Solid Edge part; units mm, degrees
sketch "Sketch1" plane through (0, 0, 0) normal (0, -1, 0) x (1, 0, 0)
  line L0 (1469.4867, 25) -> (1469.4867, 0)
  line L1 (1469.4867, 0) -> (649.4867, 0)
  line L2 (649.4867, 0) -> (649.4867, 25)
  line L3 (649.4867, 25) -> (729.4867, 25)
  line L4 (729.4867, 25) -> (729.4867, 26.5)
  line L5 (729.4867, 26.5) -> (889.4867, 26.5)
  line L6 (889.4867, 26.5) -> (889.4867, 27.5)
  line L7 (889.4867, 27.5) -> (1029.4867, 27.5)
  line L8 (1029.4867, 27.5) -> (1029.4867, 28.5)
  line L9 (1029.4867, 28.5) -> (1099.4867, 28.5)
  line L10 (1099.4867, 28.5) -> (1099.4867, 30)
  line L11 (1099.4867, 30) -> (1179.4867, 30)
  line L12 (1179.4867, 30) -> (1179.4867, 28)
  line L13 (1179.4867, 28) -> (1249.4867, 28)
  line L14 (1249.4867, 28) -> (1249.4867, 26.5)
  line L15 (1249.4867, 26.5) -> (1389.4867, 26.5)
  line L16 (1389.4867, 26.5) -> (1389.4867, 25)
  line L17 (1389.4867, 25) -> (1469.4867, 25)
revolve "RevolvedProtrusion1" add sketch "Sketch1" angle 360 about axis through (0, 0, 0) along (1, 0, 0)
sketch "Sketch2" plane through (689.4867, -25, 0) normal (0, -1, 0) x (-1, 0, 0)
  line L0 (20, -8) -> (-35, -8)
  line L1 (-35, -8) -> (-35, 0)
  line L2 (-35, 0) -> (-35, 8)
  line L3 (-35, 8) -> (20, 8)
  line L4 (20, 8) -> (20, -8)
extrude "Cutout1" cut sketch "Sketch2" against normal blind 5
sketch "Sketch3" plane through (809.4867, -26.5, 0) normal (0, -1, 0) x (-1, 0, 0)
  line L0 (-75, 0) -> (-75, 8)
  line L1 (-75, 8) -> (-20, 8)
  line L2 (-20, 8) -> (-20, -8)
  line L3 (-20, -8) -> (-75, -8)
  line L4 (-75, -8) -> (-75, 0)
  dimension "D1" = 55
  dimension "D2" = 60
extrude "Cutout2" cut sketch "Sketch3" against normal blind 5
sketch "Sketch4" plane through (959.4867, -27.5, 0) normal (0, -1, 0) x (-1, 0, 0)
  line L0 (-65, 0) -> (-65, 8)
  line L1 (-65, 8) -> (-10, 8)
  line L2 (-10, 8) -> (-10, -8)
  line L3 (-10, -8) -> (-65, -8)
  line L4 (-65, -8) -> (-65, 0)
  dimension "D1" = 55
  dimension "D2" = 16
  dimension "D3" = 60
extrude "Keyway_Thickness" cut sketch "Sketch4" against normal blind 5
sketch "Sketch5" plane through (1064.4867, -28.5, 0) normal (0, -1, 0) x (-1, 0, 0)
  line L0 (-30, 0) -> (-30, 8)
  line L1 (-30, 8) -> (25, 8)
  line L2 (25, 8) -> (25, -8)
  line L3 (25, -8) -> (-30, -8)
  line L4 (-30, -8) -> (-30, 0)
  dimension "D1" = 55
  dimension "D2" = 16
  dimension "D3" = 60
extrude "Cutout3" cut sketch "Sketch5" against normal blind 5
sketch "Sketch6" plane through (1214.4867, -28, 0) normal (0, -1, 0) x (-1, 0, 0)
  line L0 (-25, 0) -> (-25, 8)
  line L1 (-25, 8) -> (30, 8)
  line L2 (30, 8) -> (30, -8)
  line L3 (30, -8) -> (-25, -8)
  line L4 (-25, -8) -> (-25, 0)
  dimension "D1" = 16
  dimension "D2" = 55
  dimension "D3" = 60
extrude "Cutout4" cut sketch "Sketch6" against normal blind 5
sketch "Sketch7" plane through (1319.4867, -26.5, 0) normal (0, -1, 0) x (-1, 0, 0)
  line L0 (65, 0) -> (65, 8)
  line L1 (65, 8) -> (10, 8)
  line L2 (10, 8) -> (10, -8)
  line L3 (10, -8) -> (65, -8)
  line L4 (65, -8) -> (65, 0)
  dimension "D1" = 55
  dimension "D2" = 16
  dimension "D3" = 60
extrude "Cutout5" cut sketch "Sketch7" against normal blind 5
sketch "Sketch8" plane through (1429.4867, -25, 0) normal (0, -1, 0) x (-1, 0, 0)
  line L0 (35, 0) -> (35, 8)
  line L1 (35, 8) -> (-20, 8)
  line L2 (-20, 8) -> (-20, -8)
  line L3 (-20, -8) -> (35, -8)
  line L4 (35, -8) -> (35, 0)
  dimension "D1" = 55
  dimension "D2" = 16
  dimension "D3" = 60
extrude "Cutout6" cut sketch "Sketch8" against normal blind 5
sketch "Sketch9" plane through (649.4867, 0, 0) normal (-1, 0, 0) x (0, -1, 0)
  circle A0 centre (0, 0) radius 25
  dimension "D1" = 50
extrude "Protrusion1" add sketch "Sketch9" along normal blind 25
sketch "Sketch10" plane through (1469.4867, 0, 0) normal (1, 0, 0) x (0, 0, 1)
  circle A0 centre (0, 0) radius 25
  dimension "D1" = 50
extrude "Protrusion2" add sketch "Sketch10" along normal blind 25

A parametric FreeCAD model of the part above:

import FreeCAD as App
import Part
import Sketcher
Q = App.Units.Quantity

doc = App.newDocument("Part")
params = doc.addObject("Spreadsheet::Sheet", "Params")
for row, (alias, value) in enumerate([
    ("sketch1_width", "80 mm"),
    ("sketch1_width2", "140 mm"),
    ("sketch1_width3", "70 mm"),
    ("sketch1_width4", "160 mm"),
    ("sketch1_height", "25 mm"),
    ("revolution_angle", "360 deg"),
    ("sketch2_width", "55 mm"),
    ("sketch2_height", "16 mm"),
    ("pocket1_length", "5 mm"),
    ("sketch3_width", "55 mm"),
    ("sketch3_height", "16 mm"),
    ("pocket2_length", "5 mm"),
    ("sketch4_width", "55 mm"),
    ("sketch4_height", "16 mm"),
    ("pocket3_length", "5 mm"),
    ("sketch5_width", "55 mm"),
    ("sketch5_height", "16 mm"),
    ("pocket4_length", "5 mm"),
    ("sketch6_width", "55 mm"),
    ("sketch6_height", "16 mm"),
    ("pocket5_length", "5 mm"),
    ("sketch7_width", "55 mm"),
    ("sketch7_height", "16 mm"),
    ("pocket6_length", "5 mm"),
    ("sketch8_width", "55 mm"),
    ("sketch8_height", "16 mm"),
    ("pocket7_length", "5 mm"),
    ("sketch9_diameter", "50 mm"),
    ("pad1_length", "25 mm"),
    ("sketch10_diameter", "50 mm"),
    ("pad2_length", "25 mm"),
], start=1):
    params.set(f"A{row}", alias)
    params.set(f"B{row}", "=" + value)
    params.setAlias(f"B{row}", alias)

body = doc.addObject("PartDesign::Body", "Body")

# Sketch on XZ plane
sketch1 = doc.addObject("Sketcher::SketchObject", "Sketch")
body.addObject(sketch1)
sketch1.AttachmentSupport = (doc.XZ_Plane, [""])
sketch1.MapMode = "FlatFace"
sketch1.addGeometry(Part.LineSegment(App.Vector(1469.4867, 0, 0), App.Vector(1469.4867, 25, 0)), False)
sketch1.addGeometry(Part.LineSegment(App.Vector(1469.4867, 25, 0), App.Vector(1389.4867, 25, 0)), False)
sketch1.addGeometry(Part.LineSegment(App.Vector(1389.4867, 25, 0), App.Vector(1389.4867, 26.5, 0)), False)
sketch1.addGeometry(Part.LineSegment(App.Vector(1389.4867, 26.5, 0), App.Vector(1249.4867, 26.5, 0)), False)
sketch1.addGeometry(Part.LineSegment(App.Vector(1249.4867, 26.5, 0), App.Vector(1249.4867, 28, 0)), False)
sketch1.addGeometry(Part.LineSegment(App.Vector(1249.4867, 28, 0), App.Vector(1179.4867, 28, 0)), False)
sketch1.addGeometry(Part.LineSegment(App.Vector(1179.4867, 28, 0), App.Vector(1179.4867, 30, 0)), False)
sketch1.addGeometry(Part.LineSegment(App.Vector(1179.4867, 30, 0), App.Vector(1099.4867, 30, 0)), False)
sketch1.addGeometry(Part.LineSegment(App.Vector(1099.4867, 30, 0), App.Vector(1099.4867, 28.5, 0)), False)
sketch1.addGeometry(Part.LineSegment(App.Vector(1099.4867, 28.5, 0), App.Vector(1029.4867, 28.5, 0)), False)
sketch1.addGeometry(Part.LineSegment(App.Vector(1029.4867, 28.5, 0), App.Vector(1029.4867, 27.5, 0)), False)
sketch1.addGeometry(Part.LineSegment(App.Vector(1029.4867, 27.5, 0), App.Vector(889.4867, 27.5, 0)), False)
sketch1.addGeometry(Part.LineSegment(App.Vector(889.4867, 27.5, 0), App.Vector(889.4867, 26.5, 0)), False)
sketch1.addGeometry(Part.LineSegment(App.Vector(889.4867, 26.5, 0), App.Vector(729.4867, 26.5, 0)), False)
sketch1.addGeometry(Part.LineSegment(App.Vector(729.4867, 26.5, 0), App.Vector(729.4867, 25, 0)), False)
sketch1.addGeometry(Part.LineSegment(App.Vector(729.4867, 25, 0), App.Vector(649.4867, 25, 0)), False)
sketch1.addGeometry(Part.LineSegment(App.Vector(649.4867, 25, 0), App.Vector(649.4867, 0, 0)), False)
sketch1.addGeometry(Part.LineSegment(App.Vector(649.4867, 0, 0), App.Vector(1469.4867, 0, 0)), False)
sketch1.addConstraint(Sketcher.Constraint("Coincident", 0, 2, 1, 1))
sketch1.addConstraint(Sketcher.Constraint("Coincident", 1, 2, 2, 1))
sketch1.addConstraint(Sketcher.Constraint("Coincident", 2, 2, 3, 1))
sketch1.addConstraint(Sketcher.Constraint("Coincident", 3, 2, 4, 1))
sketch1.addConstraint(Sketcher.Constraint("Coincident", 4, 2, 5, 1))
sketch1.addConstraint(Sketcher.Constraint("Coincident", 5, 2, 6, 1))
sketch1.addConstraint(Sketcher.Constraint("Coincident", 6, 2, 7, 1))
sketch1.addConstraint(Sketcher.Constraint("Coincident", 7, 2, 8, 1))
sketch1.addConstraint(Sketcher.Constraint("Coincident", 8, 2, 9, 1))
sketch1.addConstraint(Sketcher.Constraint("Coincident", 9, 2, 10, 1))
sketch1.addConstraint(Sketcher.Constraint("Coincident", 10, 2, 11, 1))
sketch1.addConstraint(Sketcher.Constraint("Coincident", 11, 2, 12, 1))
sketch1.addConstraint(Sketcher.Constraint("Coincident", 12, 2, 13, 1))
sketch1.addConstraint(Sketcher.Constraint("Coincident", 13, 2, 14, 1))
sketch1.addConstraint(Sketcher.Constraint("Coincident", 14, 2, 15, 1))
sketch1.addConstraint(Sketcher.Constraint("Coincident", 15, 2, 16, 1))
sketch1.addConstraint(Sketcher.Constraint("Coincident", 16, 2, 17, 1))
sketch1.addConstraint(Sketcher.Constraint("Coincident", 17, 2, 0, 1))
sketch1.addConstraint(Sketcher.Constraint("Vertical", 0))
sketch1.addConstraint(Sketcher.Constraint("Horizontal", 1))
sketch1.addConstraint(Sketcher.Constraint("Vertical", 2))
sketch1.addConstraint(Sketcher.Constraint("Horizontal", 3))
sketch1.addConstraint(Sketcher.Constraint("Vertical", 4))
sketch1.addConstraint(Sketcher.Constraint("Horizontal", 5))
sketch1.addConstraint(Sketcher.Constraint("Vertical", 6))
sketch1.addConstraint(Sketcher.Constraint("Horizontal", 7))
sketch1.addConstraint(Sketcher.Constraint("Vertical", 8))
sketch1.addConstraint(Sketcher.Constraint("Horizontal", 9))
sketch1.addConstraint(Sketcher.Constraint("Vertical", 10))
sketch1.addConstraint(Sketcher.Constraint("Horizontal", 11))
sketch1.addConstraint(Sketcher.Constraint("Vertical", 12))
sketch1.addConstraint(Sketcher.Constraint("Horizontal", 13))
sketch1.addConstraint(Sketcher.Constraint("Vertical", 14))
sketch1.addConstraint(Sketcher.Constraint("Horizontal", 15))
sketch1.addConstraint(Sketcher.Constraint("Vertical", 16))
sketch1.addConstraint(Sketcher.Constraint("Horizontal", 17))
sketch1.addConstraint(Sketcher.Constraint("PointOnObject", 16, 2, -1))
sketch1.addConstraint(Sketcher.Constraint("Horizontal", 3, 2, 12, 2))
sketch1.addConstraint(Sketcher.Constraint("Horizontal", 1, 2, 14, 2))
sketch1.addConstraint(Sketcher.Constraint("Equal", 1, 7))
sketch1.addConstraint(Sketcher.Constraint("Equal", 5, 9))
sketch1.addConstraint(Sketcher.Constraint("Equal", 3, 11))
sketch1.addConstraint(Sketcher.Constraint("Equal", 7, 15))
sketch1.addConstraint(Sketcher.Constraint("Equal", 2, 4))
sketch1.addConstraint(Sketcher.Constraint("Equal", 4, 8))
sketch1.addConstraint(Sketcher.Constraint("Equal", 10, 12))
sketch1.addConstraint(Sketcher.Constraint("DistanceX", 1, 2, 1, 1, Q("80 mm")))
sketch1.addConstraint(Sketcher.Constraint("DistanceX", 3, 2, 3, 1, Q("140 mm")))
sketch1.addConstraint(Sketcher.Constraint("DistanceX", 5, 2, 5, 1, Q("70 mm")))
sketch1.addConstraint(Sketcher.Constraint("DistanceX", 13, 2, 13, 1, Q("160 mm")))
sketch1.addConstraint(Sketcher.Constraint("DistanceY", 0, 1, 0, 2, Q("25 mm")))
sketch1.addConstraint(Sketcher.Constraint("DistanceY", 6, 1, 6, 2, Q("2 mm")))
sketch1.addConstraint(Sketcher.Constraint("DistanceY", 2, 1, 2, 2, Q("1.5 mm")))
sketch1.addConstraint(Sketcher.Constraint("DistanceX", -1, 1, 0, 2, Q("1469.4867 mm")))
sketch1.setExpression("Constraints[46]", "Params.sketch1_width")
sketch1.setExpression("Constraints[47]", "Params.sketch1_width2")
sketch1.setExpression("Constraints[48]", "Params.sketch1_width3")
sketch1.setExpression("Constraints[49]", "Params.sketch1_width4")
sketch1.setExpression("Constraints[50]", "Params.sketch1_height")
revolution = doc.addObject("PartDesign::Revolution", "Revolution")
body.addObject(revolution)
revolution.Profile = sketch1
revolution.ReferenceAxis = (sketch1, ["H_Axis"])
revolution.setExpression("Angle", "Params.revolution_angle")

# Sketch on XZ plane
sketch2 = doc.addObject("Sketcher::SketchObject", "Sketch001")
body.addObject(sketch2)
sketch2.AttachmentSupport = (doc.XZ_Plane, [""])
sketch2.MapMode = "FlatFace"
sketch2.AttachmentOffset = App.Placement(App.Vector(0, 0, 25), App.Rotation())
sketch2.addGeometry(Part.LineSegment(App.Vector(724.4867, 8, 0), App.Vector(669.4867, 8, 0)), False)
sketch2.addGeometry(Part.LineSegment(App.Vector(669.4867, 8, 0), App.Vector(669.4867, -8, 0)), False)
sketch2.addGeometry(Part.LineSegment(App.Vector(669.4867, -8, 0), App.Vector(724.4867, -8, 0)), False)
sketch2.addGeometry(Part.LineSegment(App.Vector(724.4867, -8, 0), App.Vector(724.4867, 8, 0)), False)
sketch2.addConstraint(Sketcher.Constraint("Coincident", 0, 2, 1, 1))
sketch2.addConstraint(Sketcher.Constraint("Coincident", 1, 2, 2, 1))
sketch2.addConstraint(Sketcher.Constraint("Coincident", 2, 2, 3, 1))
sketch2.addConstraint(Sketcher.Constraint("Coincident", 3, 2, 0, 1))
sketch2.addConstraint(Sketcher.Constraint("Horizontal", 0))
sketch2.addConstraint(Sketcher.Constraint("Vertical", 1))
sketch2.addConstraint(Sketcher.Constraint("Horizontal", 2))
sketch2.addConstraint(Sketcher.Constraint("Vertical", 3))
sketch2.addConstraint(Sketcher.Constraint("DistanceX", 0, 2, 0, 1, Q("55 mm")))
sketch2.addConstraint(Sketcher.Constraint("DistanceY", 1, 2, 1, 1, Q("16 mm")))
sketch2.addConstraint(Sketcher.Constraint("DistanceY", -1, 1, 0, 2, Q("8 mm")))
sketch2.addConstraint(Sketcher.Constraint("DistanceX", -1, 1, 0, 2, Q("669.4867 mm")))
sketch2.setExpression("Constraints[8]", "Params.sketch2_width")
sketch2.setExpression("Constraints[9]", "Params.sketch2_height")
pocket1 = doc.addObject("PartDesign::Pocket", "Pocket")
body.addObject(pocket1)
pocket1.Profile = sketch2
pocket1.setExpression("Length", "Params.pocket1_length")

# Sketch on XZ plane
sketch3 = doc.addObject("Sketcher::SketchObject", "Sketch002")
body.addObject(sketch3)
sketch3.AttachmentSupport = (doc.XZ_Plane, [""])
sketch3.MapMode = "FlatFace"
sketch3.AttachmentOffset = App.Placement(App.Vector(0, 0, 26.5), App.Rotation())
sketch3.addGeometry(Part.LineSegment(App.Vector(884.4867, -8, 0), App.Vector(884.4867, 8, 0)), False)
sketch3.addGeometry(Part.LineSegment(App.Vector(884.4867, 8, 0), App.Vector(829.4867, 8, 0)), False)
sketch3.addGeometry(Part.LineSegment(App.Vector(829.4867, 8, 0), App.Vector(829.4867, -8, 0)), False)
sketch3.addGeometry(Part.LineSegment(App.Vector(829.4867, -8, 0), App.Vector(884.4867, -8, 0)), False)
sketch3.addConstraint(Sketcher.Constraint("Coincident", 0, 2, 1, 1))
sketch3.addConstraint(Sketcher.Constraint("Coincident", 1, 2, 2, 1))
sketch3.addConstraint(Sketcher.Constraint("Coincident", 2, 2, 3, 1))
sketch3.addConstraint(Sketcher.Constraint("Coincident", 3, 2, 0, 1))
sketch3.addConstraint(Sketcher.Constraint("Vertical", 0))
sketch3.addConstraint(Sketcher.Constraint("Horizontal", 1))
sketch3.addConstraint(Sketcher.Constraint("Vertical", 2))
sketch3.addConstraint(Sketcher.Constraint("Horizontal", 3))
sketch3.addConstraint(Sketcher.Constraint("DistanceX", 1, 2, 1, 1, Q("55 mm")))
sketch3.addConstraint(Sketcher.Constraint("DistanceY", 0, 1, 0, 2, Q("16 mm")))
sketch3.addConstraint(Sketcher.Constraint("DistanceY", -1, 1, 0, 2, Q("8 mm")))
sketch3.addConstraint(Sketcher.Constraint("DistanceX", -1, 1, 0, 2, Q("884.4867 mm")))
sketch3.setExpression("Constraints[8]", "Params.sketch3_width")
sketch3.setExpression("Constraints[9]", "Params.sketch3_height")
pocket2 = doc.addObject("PartDesign::Pocket", "Pocket001")
body.addObject(pocket2)
pocket2.Profile = sketch3
pocket2.setExpression("Length", "Params.pocket2_length")

# Sketch on XZ plane
sketch4 = doc.addObject("Sketcher::SketchObject", "Sketch003")
body.addObject(sketch4)
sketch4.AttachmentSupport = (doc.XZ_Plane, [""])
sketch4.MapMode = "FlatFace"
sketch4.AttachmentOffset = App.Placement(App.Vector(0, 0, 27.5), App.Rotation())
sketch4.addGeometry(Part.LineSegment(App.Vector(1024.4867, -8, 0), App.Vector(1024.4867, 8, 0)), False)
sketch4.addGeometry(Part.LineSegment(App.Vector(1024.4867, 8, 0), App.Vector(969.4867, 8, 0)), False)
sketch4.addGeometry(Part.LineSegment(App.Vector(969.4867, 8, 0), App.Vector(969.4867, -8, 0)), False)
sketch4.addGeometry(Part.LineSegment(App.Vector(969.4867, -8, 0), App.Vector(1024.4867, -8, 0)), False)
sketch4.addConstraint(Sketcher.Constraint("Coincident", 0, 2, 1, 1))
sketch4.addConstraint(Sketcher.Constraint("Coincident", 1, 2, 2, 1))
sketch4.addConstraint(Sketcher.Constraint("Coincident", 2, 2, 3, 1))
sketch4.addConstraint(Sketcher.Constraint("Coincident", 3, 2, 0, 1))
sketch4.addConstraint(Sketcher.Constraint("Vertical", 0))
sketch4.addConstraint(Sketcher.Constraint("Horizontal", 1))
sketch4.addConstraint(Sketcher.Constraint("Vertical", 2))
sketch4.addConstraint(Sketcher.Constraint("Horizontal", 3))
sketch4.addConstraint(Sketcher.Constraint("DistanceX", 1, 2, 1, 1, Q("55 mm")))
sketch4.addConstraint(Sketcher.Constraint("DistanceY", 0, 1, 0, 2, Q("16 mm")))
sketch4.addConstraint(Sketcher.Constraint("DistanceY", -1, 1, 0, 2, Q("8 mm")))
sketch4.addConstraint(Sketcher.Constraint("DistanceX", -1, 1, 0, 2, Q("1024.4867 mm")))
sketch4.setExpression("Constraints[8]", "Params.sketch4_width")
sketch4.setExpression("Constraints[9]", "Params.sketch4_height")
pocket3 = doc.addObject("PartDesign::Pocket", "Pocket002")
body.addObject(pocket3)
pocket3.Profile = sketch4
pocket3.setExpression("Length", "Params.pocket3_length")

# Sketch on XZ plane
sketch5 = doc.addObject("Sketcher::SketchObject", "Sketch004")
body.addObject(sketch5)
sketch5.AttachmentSupport = (doc.XZ_Plane, [""])
sketch5.MapMode = "FlatFace"
sketch5.AttachmentOffset = App.Placement(App.Vector(0, 0, 28.5), App.Rotation())
sketch5.addGeometry(Part.LineSegment(App.Vector(1094.4867, -8, 0), App.Vector(1094.4867, 8, 0)), False)
sketch5.addGeometry(Part.LineSegment(App.Vector(1094.4867, 8, 0), App.Vector(1039.4867, 8, 0)), False)
sketch5.addGeometry(Part.LineSegment(App.Vector(1039.4867, 8, 0), App.Vector(1039.4867, -8, 0)), False)
sketch5.addGeometry(Part.LineSegment(App.Vector(1039.4867, -8, 0), App.Vector(1094.4867, -8, 0)), False)
sketch5.addConstraint(Sketcher.Constraint("Coincident", 0, 2, 1, 1))
sketch5.addConstraint(Sketcher.Constraint("Coincident", 1, 2, 2, 1))
sketch5.addConstraint(Sketcher.Constraint("Coincident", 2, 2, 3, 1))
sketch5.addConstraint(Sketcher.Constraint("Coincident", 3, 2, 0, 1))
sketch5.addConstraint(Sketcher.Constraint("Vertical", 0))
sketch5.addConstraint(Sketcher.Constraint("Horizontal", 1))
sketch5.addConstraint(Sketcher.Constraint("Vertical", 2))
sketch5.addConstraint(Sketcher.Constraint("Horizontal", 3))
sketch5.addConstraint(Sketcher.Constraint("DistanceX", 1, 2, 1, 1, Q("55 mm")))
sketch5.addConstraint(Sketcher.Constraint("DistanceY", 0, 1, 0, 2, Q("16 mm")))
sketch5.addConstraint(Sketcher.Constraint("DistanceY", -1, 1, 0, 2, Q("8 mm")))
sketch5.addConstraint(Sketcher.Constraint("DistanceX", -1, 1, 0, 2, Q("1094.4867 mm")))
sketch5.setExpression("Constraints[8]", "Params.sketch5_width")
sketch5.setExpression("Constraints[9]", "Params.sketch5_height")
pocket4 = doc.addObject("PartDesign::Pocket", "Pocket003")
body.addObject(pocket4)
pocket4.Profile = sketch5
pocket4.setExpression("Length", "Params.pocket4_length")

# Sketch on XZ plane
sketch6 = doc.addObject("Sketcher::SketchObject", "Sketch005")
body.addObject(sketch6)
sketch6.AttachmentSupport = (doc.XZ_Plane, [""])
sketch6.MapMode = "FlatFace"
sketch6.AttachmentOffset = App.Placement(App.Vector(0, 0, 28), App.Rotation())
sketch6.addGeometry(Part.LineSegment(App.Vector(1239.4867, -8, 0), App.Vector(1239.4867, 8, 0)), False)
sketch6.addGeometry(Part.LineSegment(App.Vector(1239.4867, 8, 0), App.Vector(1184.4867, 8, 0)), False)
sketch6.addGeometry(Part.LineSegment(App.Vector(1184.4867, 8, 0), App.Vector(1184.4867, -8, 0)), False)
sketch6.addGeometry(Part.LineSegment(App.Vector(1184.4867, -8, 0), App.Vector(1239.4867, -8, 0)), False)
sketch6.addConstraint(Sketcher.Constraint("Coincident", 0, 2, 1, 1))
sketch6.addConstraint(Sketcher.Constraint("Coincident", 1, 2, 2, 1))
sketch6.addConstraint(Sketcher.Constraint("Coincident", 2, 2, 3, 1))
sketch6.addConstraint(Sketcher.Constraint("Coincident", 3, 2, 0, 1))
sketch6.addConstraint(Sketcher.Constraint("Vertical", 0))
sketch6.addConstraint(Sketcher.Constraint("Horizontal", 1))
sketch6.addConstraint(Sketcher.Constraint("Vertical", 2))
sketch6.addConstraint(Sketcher.Constraint("Horizontal", 3))
sketch6.addConstraint(Sketcher.Constraint("DistanceX", 1, 2, 1, 1, Q("55 mm")))
sketch6.addConstraint(Sketcher.Constraint("DistanceY", 0, 1, 0, 2, Q("16 mm")))
sketch6.addConstraint(Sketcher.Constraint("DistanceY", -1, 1, 0, 2, Q("8 mm")))
sketch6.addConstraint(Sketcher.Constraint("DistanceX", -1, 1, 0, 2, Q("1239.4867 mm")))
sketch6.setExpression("Constraints[8]", "Params.sketch6_width")
sketch6.setExpression("Constraints[9]", "Params.sketch6_height")
pocket5 = doc.addObject("PartDesign::Pocket", "Pocket004")
body.addObject(pocket5)
pocket5.Profile = sketch6
pocket5.setExpression("Length", "Params.pocket5_length")

# Sketch on XZ plane
sketch7 = doc.addObject("Sketcher::SketchObject", "Sketch006")
body.addObject(sketch7)
sketch7.AttachmentSupport = (doc.XZ_Plane, [""])
sketch7.MapMode = "FlatFace"
sketch7.AttachmentOffset = App.Placement(App.Vector(0, 0, 26.5), App.Rotation())
sketch7.addGeometry(Part.LineSegment(App.Vector(1254.4867, 8, 0), App.Vector(1254.4867, -8, 0)), False)
sketch7.addGeometry(Part.LineSegment(App.Vector(1254.4867, -8, 0), App.Vector(1309.4867, -8, 0)), False)
sketch7.addGeometry(Part.LineSegment(App.Vector(1309.4867, -8, 0), App.Vector(1309.4867, 8, 0)), False)
sketch7.addGeometry(Part.LineSegment(App.Vector(1309.4867, 8, 0), App.Vector(1254.4867, 8, 0)), False)
sketch7.addConstraint(Sketcher.Constraint("Coincident", 0, 2, 1, 1))
sketch7.addConstraint(Sketcher.Constraint("Coincident", 1, 2, 2, 1))
sketch7.addConstraint(Sketcher.Constraint("Coincident", 2, 2, 3, 1))
sketch7.addConstraint(Sketcher.Constraint("Coincident", 3, 2, 0, 1))
sketch7.addConstraint(Sketcher.Constraint("Vertical", 0))
sketch7.addConstraint(Sketcher.Constraint("Horizontal", 1))
sketch7.addConstraint(Sketcher.Constraint("Vertical", 2))
sketch7.addConstraint(Sketcher.Constraint("Horizontal", 3))
sketch7.addConstraint(Sketcher.Constraint("DistanceX", 1, 1, 1, 2, Q("55 mm")))
sketch7.addConstraint(Sketcher.Constraint("DistanceY", 0, 2, 0, 1, Q("16 mm")))
sketch7.addConstraint(Sketcher.Constraint("DistanceY", 0, 2, -1, 1, Q("8 mm")))
sketch7.addConstraint(Sketcher.Constraint("DistanceX", -1, 1, 0, 2, Q("1254.4867 mm")))
sketch7.setExpression("Constraints[8]", "Params.sketch7_width")
sketch7.setExpression("Constraints[9]", "Params.sketch7_height")
pocket6 = doc.addObject("PartDesign::Pocket", "Pocket005")
body.addObject(pocket6)
pocket6.Profile = sketch7
pocket6.setExpression("Length", "Params.pocket6_length")

# Sketch on XZ plane
sketch8 = doc.addObject("Sketcher::SketchObject", "Sketch007")
body.addObject(sketch8)
sketch8.AttachmentSupport = (doc.XZ_Plane, [""])
sketch8.MapMode = "FlatFace"
sketch8.AttachmentOffset = App.Placement(App.Vector(0, 0, 25), App.Rotation())
sketch8.addGeometry(Part.LineSegment(App.Vector(1394.4867, 8, 0), App.Vector(1394.4867, -8, 0)), False)
sketch8.addGeometry(Part.LineSegment(App.Vector(1394.4867, -8, 0), App.Vector(1449.4867, -8, 0)), False)
sketch8.addGeometry(Part.LineSegment(App.Vector(1449.4867, -8, 0), App.Vector(1449.4867, 8, 0)), False)
sketch8.addGeometry(Part.LineSegment(App.Vector(1449.4867, 8, 0), App.Vector(1394.4867, 8, 0)), False)
sketch8.addConstraint(Sketcher.Constraint("Coincident", 0, 2, 1, 1))
sketch8.addConstraint(Sketcher.Constraint("Coincident", 1, 2, 2, 1))
sketch8.addConstraint(Sketcher.Constraint("Coincident", 2, 2, 3, 1))
sketch8.addConstraint(Sketcher.Constraint("Coincident", 3, 2, 0, 1))
sketch8.addConstraint(Sketcher.Constraint("Vertical", 0))
sketch8.addConstraint(Sketcher.Constraint("Horizontal", 1))
sketch8.addConstraint(Sketcher.Constraint("Vertical", 2))
sketch8.addConstraint(Sketcher.Constraint("Horizontal", 3))
sketch8.addConstraint(Sketcher.Constraint("DistanceX", 1, 1, 1, 2, Q("55 mm")))
sketch8.addConstraint(Sketcher.Constraint("DistanceY", 0, 2, 0, 1, Q("16 mm")))
sketch8.addConstraint(Sketcher.Constraint("DistanceY", 0, 2, -1, 1, Q("8 mm")))
sketch8.addConstraint(Sketcher.Constraint("DistanceX", -1, 1, 0, 2, Q("1394.4867 mm")))
sketch8.setExpression("Constraints[8]", "Params.sketch8_width")
sketch8.setExpression("Constraints[9]", "Params.sketch8_height")
pocket7 = doc.addObject("PartDesign::Pocket", "Pocket006")
body.addObject(pocket7)
pocket7.Profile = sketch8
pocket7.setExpression("Length", "Params.pocket7_length")

# Sketch on YZ plane
sketch9 = doc.addObject("Sketcher::SketchObject", "Sketch008")
body.addObject(sketch9)
sketch9.AttachmentSupport = (doc.YZ_Plane, [""])
sketch9.MapMode = "FlatFace"
sketch9.AttachmentOffset = App.Placement(App.Vector(0, 0, 649.4867), App.Rotation())
sketch9.addGeometry(Part.Circle(App.Vector(0, 0, 0), App.Vector(0, 0, 1), 25), False)
sketch9.addConstraint(Sketcher.Constraint("Coincident", 0, 3, -1, 1))
sketch9.addConstraint(Sketcher.Constraint("Diameter", 0, Q("50 mm")))
sketch9.setExpression("Constraints[1]", "Params.sketch9_diameter")
pad1 = doc.addObject("PartDesign::Pad", "Pad")
body.addObject(pad1)
pad1.Profile = sketch9
pad1.setExpression("Length", "Params.pad1_length")
pad1.Reversed = True

# Sketch on YZ plane
sketch10 = doc.addObject("Sketcher::SketchObject", "Sketch009")
body.addObject(sketch10)
sketch10.AttachmentSupport = (doc.YZ_Plane, [""])
sketch10.MapMode = "FlatFace"
sketch10.AttachmentOffset = App.Placement(App.Vector(0, 0, 1469.4867), App.Rotation())
sketch10.addGeometry(Part.Circle(App.Vector(0, 0, 0), App.Vector(0, 0, 1), 25), False)
sketch10.addConstraint(Sketcher.Constraint("Coincident", 0, 3, -1, 1))
sketch10.addConstraint(Sketcher.Constraint("Diameter", 0, Q("50 mm")))
sketch10.setExpression("Constraints[1]", "Params.sketch10_diameter")
pad2 = doc.addObject("PartDesign::Pad", "Pad001")
body.addObject(pad2)
pad2.Profile = sketch10
pad2.setExpression("Length", "Params.pad2_length")

doc.recompute()
